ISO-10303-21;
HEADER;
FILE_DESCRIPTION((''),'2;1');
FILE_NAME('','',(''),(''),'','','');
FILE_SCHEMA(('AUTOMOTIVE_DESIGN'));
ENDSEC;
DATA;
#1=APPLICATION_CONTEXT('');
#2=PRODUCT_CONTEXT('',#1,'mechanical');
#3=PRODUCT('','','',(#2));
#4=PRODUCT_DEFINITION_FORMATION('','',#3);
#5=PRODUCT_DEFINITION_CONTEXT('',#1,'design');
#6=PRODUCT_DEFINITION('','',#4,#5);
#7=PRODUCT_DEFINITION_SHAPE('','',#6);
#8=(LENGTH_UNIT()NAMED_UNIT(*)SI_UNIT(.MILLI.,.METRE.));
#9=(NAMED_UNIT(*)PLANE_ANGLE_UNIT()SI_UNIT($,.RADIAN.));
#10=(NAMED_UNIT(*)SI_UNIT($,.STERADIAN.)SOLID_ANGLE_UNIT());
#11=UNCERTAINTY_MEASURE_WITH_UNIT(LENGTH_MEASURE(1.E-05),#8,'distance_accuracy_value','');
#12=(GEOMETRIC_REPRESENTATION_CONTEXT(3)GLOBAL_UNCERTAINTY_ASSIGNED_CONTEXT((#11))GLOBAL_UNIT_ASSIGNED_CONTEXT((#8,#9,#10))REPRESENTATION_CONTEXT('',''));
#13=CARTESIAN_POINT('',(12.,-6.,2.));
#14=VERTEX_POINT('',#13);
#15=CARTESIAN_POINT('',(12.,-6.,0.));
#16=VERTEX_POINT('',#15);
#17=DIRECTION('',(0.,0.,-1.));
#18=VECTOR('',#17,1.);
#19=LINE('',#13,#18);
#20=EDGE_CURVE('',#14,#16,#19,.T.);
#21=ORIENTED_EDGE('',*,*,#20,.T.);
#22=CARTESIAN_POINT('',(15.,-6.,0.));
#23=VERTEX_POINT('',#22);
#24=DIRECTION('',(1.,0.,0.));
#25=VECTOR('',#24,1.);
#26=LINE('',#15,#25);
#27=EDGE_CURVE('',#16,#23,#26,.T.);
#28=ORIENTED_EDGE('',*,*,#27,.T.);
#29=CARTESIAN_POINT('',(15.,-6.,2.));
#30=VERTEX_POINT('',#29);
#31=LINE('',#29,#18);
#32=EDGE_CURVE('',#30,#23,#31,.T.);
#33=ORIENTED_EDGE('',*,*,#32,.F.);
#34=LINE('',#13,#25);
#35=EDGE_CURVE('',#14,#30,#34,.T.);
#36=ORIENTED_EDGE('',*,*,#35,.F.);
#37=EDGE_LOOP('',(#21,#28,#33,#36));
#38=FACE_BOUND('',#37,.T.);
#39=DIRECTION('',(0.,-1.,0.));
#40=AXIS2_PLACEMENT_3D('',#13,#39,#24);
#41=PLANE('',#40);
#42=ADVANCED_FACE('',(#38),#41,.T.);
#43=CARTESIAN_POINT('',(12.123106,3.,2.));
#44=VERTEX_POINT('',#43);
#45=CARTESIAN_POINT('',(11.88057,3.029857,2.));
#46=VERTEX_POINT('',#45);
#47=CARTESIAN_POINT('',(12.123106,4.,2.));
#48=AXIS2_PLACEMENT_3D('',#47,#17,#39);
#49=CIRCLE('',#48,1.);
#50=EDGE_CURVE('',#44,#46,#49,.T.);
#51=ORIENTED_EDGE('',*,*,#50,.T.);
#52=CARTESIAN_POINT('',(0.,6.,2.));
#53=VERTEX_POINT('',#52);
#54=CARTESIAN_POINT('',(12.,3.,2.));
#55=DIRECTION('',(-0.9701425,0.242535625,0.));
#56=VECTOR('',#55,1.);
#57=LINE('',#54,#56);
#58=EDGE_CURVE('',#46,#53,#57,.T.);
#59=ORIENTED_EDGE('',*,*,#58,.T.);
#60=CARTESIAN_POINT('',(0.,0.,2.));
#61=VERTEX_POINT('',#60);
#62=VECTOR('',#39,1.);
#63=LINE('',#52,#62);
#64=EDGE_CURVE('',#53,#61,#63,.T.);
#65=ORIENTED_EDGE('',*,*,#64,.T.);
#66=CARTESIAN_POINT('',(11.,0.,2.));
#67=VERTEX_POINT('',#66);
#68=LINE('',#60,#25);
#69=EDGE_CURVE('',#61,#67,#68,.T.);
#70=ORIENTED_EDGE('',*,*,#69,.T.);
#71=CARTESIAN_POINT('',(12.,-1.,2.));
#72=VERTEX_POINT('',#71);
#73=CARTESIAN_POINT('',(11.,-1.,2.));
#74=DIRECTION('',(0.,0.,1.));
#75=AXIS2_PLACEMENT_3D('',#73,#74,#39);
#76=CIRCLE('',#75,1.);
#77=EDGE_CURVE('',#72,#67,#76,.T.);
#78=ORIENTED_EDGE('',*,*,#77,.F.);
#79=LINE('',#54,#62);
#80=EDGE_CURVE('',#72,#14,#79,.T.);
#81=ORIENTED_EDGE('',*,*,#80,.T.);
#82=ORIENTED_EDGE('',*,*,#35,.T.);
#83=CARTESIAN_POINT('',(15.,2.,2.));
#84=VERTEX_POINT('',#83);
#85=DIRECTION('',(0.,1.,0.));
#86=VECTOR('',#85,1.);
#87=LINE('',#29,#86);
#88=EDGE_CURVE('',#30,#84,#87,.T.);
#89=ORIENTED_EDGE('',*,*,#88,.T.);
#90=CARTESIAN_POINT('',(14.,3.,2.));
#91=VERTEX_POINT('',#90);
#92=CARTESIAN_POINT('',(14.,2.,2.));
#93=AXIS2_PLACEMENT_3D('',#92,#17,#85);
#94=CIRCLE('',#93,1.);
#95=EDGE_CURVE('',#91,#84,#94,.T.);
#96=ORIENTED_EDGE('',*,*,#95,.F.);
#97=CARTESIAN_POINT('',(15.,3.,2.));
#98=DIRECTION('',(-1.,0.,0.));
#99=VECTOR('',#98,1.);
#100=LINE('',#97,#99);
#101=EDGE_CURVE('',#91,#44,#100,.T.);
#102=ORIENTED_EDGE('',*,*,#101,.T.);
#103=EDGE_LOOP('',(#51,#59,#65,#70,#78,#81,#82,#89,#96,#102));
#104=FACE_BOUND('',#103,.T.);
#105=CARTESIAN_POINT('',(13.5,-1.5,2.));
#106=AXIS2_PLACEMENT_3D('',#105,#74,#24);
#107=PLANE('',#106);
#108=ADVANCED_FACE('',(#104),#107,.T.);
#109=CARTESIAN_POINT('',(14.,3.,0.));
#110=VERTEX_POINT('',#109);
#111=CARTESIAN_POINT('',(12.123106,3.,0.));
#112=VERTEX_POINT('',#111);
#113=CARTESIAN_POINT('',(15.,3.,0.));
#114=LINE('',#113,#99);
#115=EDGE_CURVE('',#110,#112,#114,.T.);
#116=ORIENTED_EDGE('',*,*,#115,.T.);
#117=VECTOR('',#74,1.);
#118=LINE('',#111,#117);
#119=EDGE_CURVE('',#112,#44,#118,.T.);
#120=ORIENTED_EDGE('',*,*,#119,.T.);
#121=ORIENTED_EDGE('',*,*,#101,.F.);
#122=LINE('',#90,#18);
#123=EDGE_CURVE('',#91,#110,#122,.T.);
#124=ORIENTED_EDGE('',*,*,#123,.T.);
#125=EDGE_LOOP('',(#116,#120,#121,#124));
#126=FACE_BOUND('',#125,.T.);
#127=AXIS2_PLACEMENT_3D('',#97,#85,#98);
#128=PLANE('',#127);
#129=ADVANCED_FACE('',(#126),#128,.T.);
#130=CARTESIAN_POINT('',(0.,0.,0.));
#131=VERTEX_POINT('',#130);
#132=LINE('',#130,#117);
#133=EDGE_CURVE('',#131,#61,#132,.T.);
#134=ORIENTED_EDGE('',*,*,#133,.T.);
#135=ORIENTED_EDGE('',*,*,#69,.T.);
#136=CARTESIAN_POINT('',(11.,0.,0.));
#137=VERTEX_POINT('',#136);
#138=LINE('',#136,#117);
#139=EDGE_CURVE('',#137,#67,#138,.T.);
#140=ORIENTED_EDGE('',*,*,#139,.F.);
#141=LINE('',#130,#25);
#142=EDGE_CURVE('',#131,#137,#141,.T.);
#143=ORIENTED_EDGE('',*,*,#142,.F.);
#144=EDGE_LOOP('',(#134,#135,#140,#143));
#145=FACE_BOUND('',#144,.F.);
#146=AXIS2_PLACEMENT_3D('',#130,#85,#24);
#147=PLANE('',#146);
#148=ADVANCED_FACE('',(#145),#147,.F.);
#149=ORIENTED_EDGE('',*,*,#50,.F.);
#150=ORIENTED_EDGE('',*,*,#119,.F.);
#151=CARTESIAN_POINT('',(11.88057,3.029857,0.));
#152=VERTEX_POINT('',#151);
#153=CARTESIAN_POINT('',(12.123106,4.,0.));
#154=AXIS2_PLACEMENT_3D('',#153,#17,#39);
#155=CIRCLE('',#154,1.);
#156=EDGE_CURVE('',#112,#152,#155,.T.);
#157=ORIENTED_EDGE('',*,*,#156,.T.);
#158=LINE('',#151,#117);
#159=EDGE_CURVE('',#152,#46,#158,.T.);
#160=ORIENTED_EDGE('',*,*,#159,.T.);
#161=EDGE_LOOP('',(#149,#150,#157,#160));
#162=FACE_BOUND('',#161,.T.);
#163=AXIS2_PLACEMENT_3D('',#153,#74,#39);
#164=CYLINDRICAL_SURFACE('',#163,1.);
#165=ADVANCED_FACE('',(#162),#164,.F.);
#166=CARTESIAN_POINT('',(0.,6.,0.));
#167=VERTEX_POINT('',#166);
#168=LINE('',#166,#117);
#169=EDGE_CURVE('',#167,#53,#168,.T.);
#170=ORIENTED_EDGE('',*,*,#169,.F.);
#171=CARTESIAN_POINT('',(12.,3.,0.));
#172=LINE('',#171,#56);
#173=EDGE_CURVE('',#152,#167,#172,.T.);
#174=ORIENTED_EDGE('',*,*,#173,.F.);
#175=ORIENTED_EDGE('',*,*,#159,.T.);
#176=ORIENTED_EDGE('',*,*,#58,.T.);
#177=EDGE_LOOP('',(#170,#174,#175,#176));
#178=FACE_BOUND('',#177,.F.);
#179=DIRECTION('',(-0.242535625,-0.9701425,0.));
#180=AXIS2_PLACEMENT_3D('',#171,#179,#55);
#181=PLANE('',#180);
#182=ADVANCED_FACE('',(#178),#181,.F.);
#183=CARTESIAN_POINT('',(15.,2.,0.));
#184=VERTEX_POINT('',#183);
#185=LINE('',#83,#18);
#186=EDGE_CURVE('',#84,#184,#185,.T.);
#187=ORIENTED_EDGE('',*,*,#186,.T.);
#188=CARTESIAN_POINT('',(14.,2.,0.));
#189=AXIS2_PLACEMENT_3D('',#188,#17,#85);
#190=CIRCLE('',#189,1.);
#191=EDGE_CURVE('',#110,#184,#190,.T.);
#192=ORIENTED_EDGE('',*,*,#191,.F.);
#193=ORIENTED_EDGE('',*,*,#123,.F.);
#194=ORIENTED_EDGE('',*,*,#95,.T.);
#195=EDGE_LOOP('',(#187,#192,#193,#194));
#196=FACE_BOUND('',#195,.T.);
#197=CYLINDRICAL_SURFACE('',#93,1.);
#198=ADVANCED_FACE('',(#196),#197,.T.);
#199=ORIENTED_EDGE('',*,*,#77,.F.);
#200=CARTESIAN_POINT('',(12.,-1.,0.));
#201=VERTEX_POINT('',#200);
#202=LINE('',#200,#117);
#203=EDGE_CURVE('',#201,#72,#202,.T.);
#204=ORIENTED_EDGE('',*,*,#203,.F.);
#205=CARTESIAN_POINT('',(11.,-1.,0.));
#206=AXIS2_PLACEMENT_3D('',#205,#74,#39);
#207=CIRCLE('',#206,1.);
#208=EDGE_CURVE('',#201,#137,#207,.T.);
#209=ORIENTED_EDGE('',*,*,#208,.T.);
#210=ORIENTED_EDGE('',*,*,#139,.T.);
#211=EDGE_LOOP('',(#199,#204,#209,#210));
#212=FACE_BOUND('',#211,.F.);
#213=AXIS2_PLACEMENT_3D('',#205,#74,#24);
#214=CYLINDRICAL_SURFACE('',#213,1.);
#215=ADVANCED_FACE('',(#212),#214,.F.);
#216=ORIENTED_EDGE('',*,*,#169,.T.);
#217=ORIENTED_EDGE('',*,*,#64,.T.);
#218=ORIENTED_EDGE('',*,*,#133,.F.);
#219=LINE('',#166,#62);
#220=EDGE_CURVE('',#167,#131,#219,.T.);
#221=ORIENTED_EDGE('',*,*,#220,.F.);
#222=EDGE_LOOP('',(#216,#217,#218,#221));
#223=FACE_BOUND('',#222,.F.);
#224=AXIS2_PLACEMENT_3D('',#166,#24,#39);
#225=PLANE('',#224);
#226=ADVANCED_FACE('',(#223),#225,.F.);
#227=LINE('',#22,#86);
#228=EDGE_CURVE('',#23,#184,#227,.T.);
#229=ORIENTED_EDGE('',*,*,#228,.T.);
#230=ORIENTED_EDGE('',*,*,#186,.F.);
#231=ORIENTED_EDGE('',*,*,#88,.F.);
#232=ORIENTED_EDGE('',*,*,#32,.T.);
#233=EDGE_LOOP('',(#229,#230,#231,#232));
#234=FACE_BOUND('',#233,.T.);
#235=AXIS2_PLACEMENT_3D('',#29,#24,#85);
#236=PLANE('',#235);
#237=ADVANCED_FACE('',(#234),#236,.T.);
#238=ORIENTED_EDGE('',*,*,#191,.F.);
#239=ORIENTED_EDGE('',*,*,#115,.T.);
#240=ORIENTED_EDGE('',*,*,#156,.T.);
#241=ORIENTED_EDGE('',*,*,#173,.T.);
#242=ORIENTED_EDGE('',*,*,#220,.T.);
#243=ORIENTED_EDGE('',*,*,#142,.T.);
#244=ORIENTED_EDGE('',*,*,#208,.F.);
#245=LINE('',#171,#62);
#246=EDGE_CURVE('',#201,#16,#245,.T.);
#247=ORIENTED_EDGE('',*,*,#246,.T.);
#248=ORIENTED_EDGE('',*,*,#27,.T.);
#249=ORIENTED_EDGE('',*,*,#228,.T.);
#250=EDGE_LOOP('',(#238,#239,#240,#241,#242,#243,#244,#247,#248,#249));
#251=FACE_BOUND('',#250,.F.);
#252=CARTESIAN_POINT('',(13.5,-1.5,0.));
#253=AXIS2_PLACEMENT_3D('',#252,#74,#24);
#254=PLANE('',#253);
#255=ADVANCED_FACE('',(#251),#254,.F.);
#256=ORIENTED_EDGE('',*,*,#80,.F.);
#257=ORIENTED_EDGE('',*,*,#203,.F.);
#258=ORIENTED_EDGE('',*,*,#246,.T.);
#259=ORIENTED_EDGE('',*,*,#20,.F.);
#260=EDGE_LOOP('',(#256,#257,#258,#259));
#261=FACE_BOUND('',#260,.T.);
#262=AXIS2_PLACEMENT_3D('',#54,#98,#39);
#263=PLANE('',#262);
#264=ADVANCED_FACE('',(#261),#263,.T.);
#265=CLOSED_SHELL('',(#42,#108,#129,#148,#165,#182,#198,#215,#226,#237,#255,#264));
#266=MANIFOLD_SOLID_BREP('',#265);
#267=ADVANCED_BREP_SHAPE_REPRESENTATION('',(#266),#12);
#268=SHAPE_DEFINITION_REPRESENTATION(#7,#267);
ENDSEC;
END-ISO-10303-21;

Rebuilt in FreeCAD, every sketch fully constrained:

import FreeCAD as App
import Part
import Sketcher


def edges_at(feature, points):
    """Names of the edges that pass closest to the given points."""
    edges = feature.Shape.Edges
    near = lambda p: min(range(len(edges)), key=lambda i: edges[i].distToShape(Part.Vertex(*p))[0])
    return sorted({f"Edge{near(p) + 1}" for p in points})


def add_polygon(sketch, points):
    """Adds a closed chain of lines whose ends are joined by coincident constraints."""
    first, n = sketch.GeometryCount, len(points)
    for a, b in zip(points, points[1:] + points[:1]):
        sketch.addGeometry(Part.LineSegment(App.Vector(*a, 0), App.Vector(*b, 0)), False)
    for i in range(n):
        sketch.addConstraint(Sketcher.Constraint("Coincident", first + i, 2, first + (i + 1) % n, 1))

doc = App.newDocument("Part")
body = doc.addObject("PartDesign::Body", "Body")

# Sketch on XY plane
sketch1 = body.newObject("Sketcher::SketchObject", "Sketch")
sketch1.AttachmentSupport = (doc.getObject("XY_Plane"), [""])
sketch1.MapMode = "FlatFace"
add_polygon(sketch1, [(0, 0), (12, 0), (12, 3), (0, 6)])  # lines 0-3
sketch1.addConstraint([
    Sketcher.Constraint("Horizontal", 0),
    Sketcher.Constraint("Vertical", 1),
    Sketcher.Constraint("Vertical", 3),
    Sketcher.Constraint("Coincident", 3, 2, -1, 1),
    Sketcher.Constraint("DistanceX", 0, 1, 0, 2, 12.0),
    Sketcher.Constraint("DistanceY", 1, 1, 1, 2, 3.0),
    Sketcher.Constraint("DistanceY", 3, 2, 3, 1, 6.0),
])
pad1 = body.newObject("PartDesign::Pad", "Pad")
pad1.Profile = sketch1
pad1.Length = 2

# Sketch on XY plane
sketch2 = body.newObject("Sketcher::SketchObject", "Sketch001")
sketch2.AttachmentSupport = (doc.getObject("XY_Plane"), [""])
sketch2.MapMode = "FlatFace"
sketch2.AttachmentOffset = App.Placement(App.Vector(0, 0, 2), App.Rotation())
add_polygon(sketch2, [(15, 3), (12, 3), (12, -6), (15, -6)])  # lines 0-3
sketch2.addConstraint([
    Sketcher.Constraint("Horizontal", 0),
    Sketcher.Constraint("Vertical", 1),
    Sketcher.Constraint("Horizontal", 2),
    Sketcher.Constraint("Vertical", 3),
    Sketcher.Constraint("DistanceX", 0, 2, 0, 1, 3.0),
    Sketcher.Constraint("DistanceY", 1, 2, 1, 1, 9.0),
    Sketcher.Constraint("DistanceX", -1, 1, 0, 2, 12.0),
    Sketcher.Constraint("DistanceY", -1, 1, 0, 2, 3.0),
])
pad2 = body.newObject("PartDesign::Pad", "Pad001")
pad2.Profile = sketch2
pad2.Length = 2
pad2.Reversed = True
doc.recompute()

fillet = body.newObject("PartDesign::Fillet", "Fillet")
fillet.Base = (pad2, edges_at(pad2, [(12, 0, 1), (12, 3, 1), (15, 3, 1)]))
fillet.Radius = 1

doc.recompute()
